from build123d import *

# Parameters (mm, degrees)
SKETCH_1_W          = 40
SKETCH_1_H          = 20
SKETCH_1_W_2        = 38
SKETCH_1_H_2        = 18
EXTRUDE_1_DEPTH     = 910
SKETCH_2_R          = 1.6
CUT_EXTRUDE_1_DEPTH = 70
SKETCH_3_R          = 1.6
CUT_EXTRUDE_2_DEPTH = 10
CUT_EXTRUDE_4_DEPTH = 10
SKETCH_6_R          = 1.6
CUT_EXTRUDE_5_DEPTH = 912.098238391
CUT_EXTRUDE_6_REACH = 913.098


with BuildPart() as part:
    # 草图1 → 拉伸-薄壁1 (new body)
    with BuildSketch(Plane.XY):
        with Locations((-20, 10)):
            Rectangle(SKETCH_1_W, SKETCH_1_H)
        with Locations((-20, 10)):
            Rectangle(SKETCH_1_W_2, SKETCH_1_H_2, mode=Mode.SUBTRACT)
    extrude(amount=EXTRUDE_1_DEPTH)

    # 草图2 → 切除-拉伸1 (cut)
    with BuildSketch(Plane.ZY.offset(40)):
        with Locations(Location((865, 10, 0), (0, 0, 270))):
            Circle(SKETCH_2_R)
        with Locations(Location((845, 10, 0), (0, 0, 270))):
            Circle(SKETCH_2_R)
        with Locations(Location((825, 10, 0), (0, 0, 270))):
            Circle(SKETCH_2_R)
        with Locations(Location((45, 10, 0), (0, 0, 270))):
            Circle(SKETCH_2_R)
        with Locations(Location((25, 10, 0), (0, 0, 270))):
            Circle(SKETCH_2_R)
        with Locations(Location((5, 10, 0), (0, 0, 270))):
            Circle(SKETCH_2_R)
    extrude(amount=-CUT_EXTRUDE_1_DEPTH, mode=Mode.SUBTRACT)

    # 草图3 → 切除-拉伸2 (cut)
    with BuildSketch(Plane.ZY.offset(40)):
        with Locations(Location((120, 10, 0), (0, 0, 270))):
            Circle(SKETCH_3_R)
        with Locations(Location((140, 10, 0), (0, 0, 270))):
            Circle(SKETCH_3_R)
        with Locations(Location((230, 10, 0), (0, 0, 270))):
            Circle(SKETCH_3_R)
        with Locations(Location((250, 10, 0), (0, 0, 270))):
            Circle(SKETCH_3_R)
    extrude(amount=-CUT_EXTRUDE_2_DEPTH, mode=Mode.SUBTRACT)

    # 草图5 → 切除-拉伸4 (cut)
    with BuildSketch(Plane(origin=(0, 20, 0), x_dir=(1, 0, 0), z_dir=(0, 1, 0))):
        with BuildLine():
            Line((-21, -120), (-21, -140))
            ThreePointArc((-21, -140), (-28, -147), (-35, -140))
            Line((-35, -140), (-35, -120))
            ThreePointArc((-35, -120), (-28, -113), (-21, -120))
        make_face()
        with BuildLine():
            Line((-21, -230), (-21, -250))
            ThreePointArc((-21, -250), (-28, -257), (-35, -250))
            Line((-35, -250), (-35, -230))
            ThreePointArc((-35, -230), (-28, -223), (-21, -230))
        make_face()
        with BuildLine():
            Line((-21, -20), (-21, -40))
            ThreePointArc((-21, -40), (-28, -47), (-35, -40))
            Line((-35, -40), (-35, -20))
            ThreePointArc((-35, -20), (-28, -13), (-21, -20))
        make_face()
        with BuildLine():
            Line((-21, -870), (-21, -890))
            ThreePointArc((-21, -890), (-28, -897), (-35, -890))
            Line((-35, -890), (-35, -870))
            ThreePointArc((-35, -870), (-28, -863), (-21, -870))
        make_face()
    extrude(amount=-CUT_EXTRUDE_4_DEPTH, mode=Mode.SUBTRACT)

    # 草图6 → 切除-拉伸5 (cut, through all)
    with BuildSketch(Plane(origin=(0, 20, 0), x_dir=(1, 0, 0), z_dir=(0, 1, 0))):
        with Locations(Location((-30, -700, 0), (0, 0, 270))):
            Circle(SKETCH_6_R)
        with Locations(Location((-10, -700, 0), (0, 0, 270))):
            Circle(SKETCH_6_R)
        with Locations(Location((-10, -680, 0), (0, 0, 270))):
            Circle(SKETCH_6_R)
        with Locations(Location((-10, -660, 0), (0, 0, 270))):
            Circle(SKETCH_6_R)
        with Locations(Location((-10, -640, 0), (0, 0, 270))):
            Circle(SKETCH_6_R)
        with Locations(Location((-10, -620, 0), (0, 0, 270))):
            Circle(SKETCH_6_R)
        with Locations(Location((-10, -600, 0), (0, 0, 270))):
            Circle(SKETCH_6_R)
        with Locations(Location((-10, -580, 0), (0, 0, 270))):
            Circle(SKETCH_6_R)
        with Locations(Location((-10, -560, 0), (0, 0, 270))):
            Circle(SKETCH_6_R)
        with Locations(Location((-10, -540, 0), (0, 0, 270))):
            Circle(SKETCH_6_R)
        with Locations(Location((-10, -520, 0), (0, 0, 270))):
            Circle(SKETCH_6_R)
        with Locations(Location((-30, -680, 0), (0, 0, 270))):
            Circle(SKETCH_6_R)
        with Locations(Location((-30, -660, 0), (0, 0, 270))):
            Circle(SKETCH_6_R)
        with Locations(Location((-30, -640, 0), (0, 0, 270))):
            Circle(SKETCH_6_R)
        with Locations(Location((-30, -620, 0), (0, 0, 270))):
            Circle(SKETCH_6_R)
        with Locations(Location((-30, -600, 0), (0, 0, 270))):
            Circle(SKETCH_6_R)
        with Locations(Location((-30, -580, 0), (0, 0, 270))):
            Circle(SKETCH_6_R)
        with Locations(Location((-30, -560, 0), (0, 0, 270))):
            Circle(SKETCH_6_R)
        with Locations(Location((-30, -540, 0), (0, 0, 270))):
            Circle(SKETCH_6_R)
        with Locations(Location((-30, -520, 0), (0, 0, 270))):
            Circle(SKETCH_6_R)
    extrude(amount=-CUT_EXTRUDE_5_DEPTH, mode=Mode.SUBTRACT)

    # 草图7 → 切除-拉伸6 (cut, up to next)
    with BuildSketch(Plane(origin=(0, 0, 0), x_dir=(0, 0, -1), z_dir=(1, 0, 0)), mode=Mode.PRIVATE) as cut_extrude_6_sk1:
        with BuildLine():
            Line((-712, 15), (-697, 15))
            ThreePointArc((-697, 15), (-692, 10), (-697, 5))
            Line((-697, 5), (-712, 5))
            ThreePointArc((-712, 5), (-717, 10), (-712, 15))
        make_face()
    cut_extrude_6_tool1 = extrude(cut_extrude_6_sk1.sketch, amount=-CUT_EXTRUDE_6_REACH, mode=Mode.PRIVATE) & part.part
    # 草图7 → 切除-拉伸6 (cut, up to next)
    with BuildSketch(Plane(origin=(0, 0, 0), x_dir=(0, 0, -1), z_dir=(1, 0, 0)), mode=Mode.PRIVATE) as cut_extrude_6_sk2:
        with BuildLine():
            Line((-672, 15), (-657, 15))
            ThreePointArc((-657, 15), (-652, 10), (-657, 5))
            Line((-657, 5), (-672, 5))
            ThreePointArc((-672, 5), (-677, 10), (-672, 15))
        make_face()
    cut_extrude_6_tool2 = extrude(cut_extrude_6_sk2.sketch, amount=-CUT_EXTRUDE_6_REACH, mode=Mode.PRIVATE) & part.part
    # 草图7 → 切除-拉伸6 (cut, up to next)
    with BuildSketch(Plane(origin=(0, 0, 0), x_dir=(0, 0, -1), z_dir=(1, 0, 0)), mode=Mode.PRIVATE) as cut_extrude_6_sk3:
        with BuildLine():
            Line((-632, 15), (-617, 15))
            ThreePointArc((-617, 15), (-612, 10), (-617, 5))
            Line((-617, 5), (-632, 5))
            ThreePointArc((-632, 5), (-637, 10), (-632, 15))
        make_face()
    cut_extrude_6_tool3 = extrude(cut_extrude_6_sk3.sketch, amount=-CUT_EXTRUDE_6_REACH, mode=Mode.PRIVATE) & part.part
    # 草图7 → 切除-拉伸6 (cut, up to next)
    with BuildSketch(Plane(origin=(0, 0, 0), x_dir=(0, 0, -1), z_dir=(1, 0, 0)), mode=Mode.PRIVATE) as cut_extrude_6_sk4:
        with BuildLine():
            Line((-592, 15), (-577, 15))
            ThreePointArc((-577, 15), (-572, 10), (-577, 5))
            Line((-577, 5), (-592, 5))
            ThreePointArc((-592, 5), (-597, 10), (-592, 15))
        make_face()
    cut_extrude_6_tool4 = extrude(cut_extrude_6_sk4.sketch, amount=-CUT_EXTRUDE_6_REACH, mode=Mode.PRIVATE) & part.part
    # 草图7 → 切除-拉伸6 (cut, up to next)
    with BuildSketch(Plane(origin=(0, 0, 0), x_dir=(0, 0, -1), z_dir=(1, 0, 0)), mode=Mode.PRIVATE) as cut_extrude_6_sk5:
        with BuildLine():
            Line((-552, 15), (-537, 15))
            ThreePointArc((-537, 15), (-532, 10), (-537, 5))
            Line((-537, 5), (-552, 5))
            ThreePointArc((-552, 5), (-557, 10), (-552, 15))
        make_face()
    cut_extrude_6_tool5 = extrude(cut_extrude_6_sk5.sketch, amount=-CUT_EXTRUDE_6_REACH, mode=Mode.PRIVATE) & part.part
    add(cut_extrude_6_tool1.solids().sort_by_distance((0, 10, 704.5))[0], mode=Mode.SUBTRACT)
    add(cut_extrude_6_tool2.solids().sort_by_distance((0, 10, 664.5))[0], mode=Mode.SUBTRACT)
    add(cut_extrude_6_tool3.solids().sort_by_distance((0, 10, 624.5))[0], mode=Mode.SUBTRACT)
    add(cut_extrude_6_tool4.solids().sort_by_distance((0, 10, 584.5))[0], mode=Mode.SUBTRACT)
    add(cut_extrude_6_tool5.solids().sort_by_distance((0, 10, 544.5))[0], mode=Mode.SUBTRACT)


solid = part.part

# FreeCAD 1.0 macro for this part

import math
import FreeCAD as App
import Part
import Sketcher

V = App.Vector

doc = App.newDocument("Part")
body = doc.addObject("PartDesign::Body", "Body")

# Sketch on XY plane
sketch1 = doc.addObject("Sketcher::SketchObject", "Sketch")
body.addObject(sketch1)
sketch1.AttachmentSupport = (doc.XY_Plane, [""])
sketch1.MapMode = "FlatFace"
sketch1.addGeometry([
    Part.LineSegment(V(-40, 20, 0), V(-40, 0, 0)),  # 0
    Part.LineSegment(V(-40, 0, 0), V(0, 0, 0)),  # 1
    Part.LineSegment(V(0, 0, 0), V(0, 20, 0)),  # 2
    Part.LineSegment(V(0, 20, 0), V(-40, 20, 0)),  # 3
    Part.LineSegment(V(-1, 1, 0), V(-39, 1, 0)),  # 4
    Part.LineSegment(V(-39, 1, 0), V(-39, 19, 0)),  # 5
    Part.LineSegment(V(-39, 19, 0), V(-1, 19, 0)),  # 6
    Part.LineSegment(V(-1, 19, 0), V(-1, 1, 0)),  # 7
], False)
sketch1.addConstraint([
    Sketcher.Constraint("Coincident", 0, 2, 1, 1),
    Sketcher.Constraint("Coincident", 1, 2, 2, 1),
    Sketcher.Constraint("Coincident", 2, 2, 3, 1),
    Sketcher.Constraint("Coincident", 3, 2, 0, 1),
    Sketcher.Constraint("Coincident", 4, 2, 5, 1),
    Sketcher.Constraint("Coincident", 5, 2, 6, 1),
    Sketcher.Constraint("Coincident", 6, 2, 7, 1),
    Sketcher.Constraint("Coincident", 7, 2, 4, 1),
    Sketcher.Constraint("Vertical", 0),
    Sketcher.Constraint("Horizontal", 1),
    Sketcher.Constraint("Vertical", 2),
    Sketcher.Constraint("Horizontal", 3),
    Sketcher.Constraint("Horizontal", 4),
    Sketcher.Constraint("Vertical", 5),
    Sketcher.Constraint("Horizontal", 6),
    Sketcher.Constraint("Vertical", 7),
    Sketcher.Constraint("Coincident", 1, 2, -1, 1),
    Sketcher.Constraint("DistanceX", 1, 1, 1, 2, 40.0),
    Sketcher.Constraint("DistanceX", 4, 2, 4, 1, 38.0),
    Sketcher.Constraint("DistanceY", 0, 2, 0, 1, 20.0),
    Sketcher.Constraint("DistanceY", 5, 1, 5, 2, 18.0),
    Sketcher.Constraint("DistanceX", 4, 2, -1, 1, 39.0),
    Sketcher.Constraint("DistanceY", -1, 1, 4, 2, 1.0),
])
pad1 = doc.addObject("PartDesign::Pad", "Pad")
body.addObject(pad1)
pad1.Profile = sketch1
pad1.Length = 910

# Sketch on YZ plane
sketch2 = doc.addObject("Sketcher::SketchObject", "Sketch001")
body.addObject(sketch2)
sketch2.AttachmentSupport = (doc.YZ_Plane, [""])
sketch2.MapMode = "FlatFace"
sketch2.AttachmentOffset = App.Placement(V(0, 0, -40), App.Rotation())
sketch2.addGeometry([
    Part.Circle(V(10, 865, 0), V(0, 0, 1), 1.6),  # 0
    Part.Circle(V(10, 845, 0), V(0, 0, 1), 1.6),  # 1
    Part.Circle(V(10, 825, 0), V(0, 0, 1), 1.6),  # 2
    Part.Circle(V(10, 45, 0), V(0, 0, 1), 1.6),  # 3
    Part.Circle(V(10, 25, 0), V(0, 0, 1), 1.6),  # 4
    Part.Circle(V(10, 5, 0), V(0, 0, 1), 1.6),  # 5
], False)
sketch2.addConstraint([
    Sketcher.Constraint("Equal", 0, 1),
    Sketcher.Constraint("Equal", 1, 2),
    Sketcher.Constraint("Equal", 2, 3),
    Sketcher.Constraint("Equal", 3, 4),
    Sketcher.Constraint("Equal", 4, 5),
    Sketcher.Constraint("Vertical", 0, 3, 1, 3),
    Sketcher.Constraint("Vertical", 1, 3, 2, 3),
    Sketcher.Constraint("Vertical", 2, 3, 3, 3),
    Sketcher.Constraint("Vertical", 3, 3, 4, 3),
    Sketcher.Constraint("Vertical", 4, 3, 5, 3),
    Sketcher.Constraint("Diameter", 0, 3.2),
    Sketcher.Constraint("DistanceX", -1, 1, 0, 3, 10.0),
    Sketcher.Constraint("DistanceY", -1, 1, 0, 3, 865.0),
    Sketcher.Constraint("DistanceY", -1, 1, 1, 3, 845.0),
    Sketcher.Constraint("DistanceY", -1, 1, 2, 3, 825.0),
    Sketcher.Constraint("DistanceY", -1, 1, 3, 3, 45.0),
    Sketcher.Constraint("DistanceY", -1, 1, 4, 3, 25.0),
    Sketcher.Constraint("DistanceY", -1, 1, 5, 3, 5.0),
])
pocket1 = doc.addObject("PartDesign::Pocket", "Pocket")
body.addObject(pocket1)
pocket1.Profile = sketch2
pocket1.Length = 70
pocket1.Reversed = True

# Sketch on YZ plane
sketch3 = doc.addObject("Sketcher::SketchObject", "Sketch002")
body.addObject(sketch3)
sketch3.AttachmentSupport = (doc.YZ_Plane, [""])
sketch3.MapMode = "FlatFace"
sketch3.AttachmentOffset = App.Placement(V(0, 0, -40), App.Rotation())
sketch3.addGeometry([
    Part.Circle(V(10, 120, 0), V(0, 0, 1), 1.6),
    Part.Circle(V(10, 140, 0), V(0, 0, 1), 1.6),
    Part.Circle(V(10, 230, 0), V(0, 0, 1), 1.6),
    Part.Circle(V(10, 250, 0), V(0, 0, 1), 1.6),
], False)
sketch3.addConstraint([
    Sketcher.Constraint("Equal", 0, 1),
    Sketcher.Constraint("Equal", 1, 2),
    Sketcher.Constraint("Equal", 2, 3),
    Sketcher.Constraint("Vertical", 0, 3, 1, 3),
    Sketcher.Constraint("Vertical", 1, 3, 2, 3),
    Sketcher.Constraint("Vertical", 2, 3, 3, 3),
    Sketcher.Constraint("Diameter", 0, 3.2),
    Sketcher.Constraint("DistanceX", -1, 1, 0, 3, 10.0),
    Sketcher.Constraint("DistanceY", -1, 1, 0, 3, 120.0),
    Sketcher.Constraint("DistanceY", -1, 1, 1, 3, 140.0),
    Sketcher.Constraint("DistanceY", -1, 1, 2, 3, 230.0),
    Sketcher.Constraint("DistanceY", -1, 1, 3, 3, 250.0),
])
pocket2 = doc.addObject("PartDesign::Pocket", "Pocket001")
body.addObject(pocket2)
pocket2.Profile = sketch3
pocket2.Length = 10
pocket2.Reversed = True

# Sketch on XZ plane
sketch4 = doc.addObject("Sketcher::SketchObject", "Sketch003")
body.addObject(sketch4)
sketch4.AttachmentSupport = (doc.XZ_Plane, [""])
sketch4.MapMode = "FlatFace"
sketch4.AttachmentOffset = App.Placement(V(0, 0, -20), App.Rotation())
sketch4.addGeometry([
    Part.LineSegment(V(-21, 140, 0), V(-21, 120, 0)),  # 0
    Part.ArcOfCircle(Part.Circle(V(-28, 120, 0), V(0, 0, 1), 7), math.radians(180), math.radians(360)),  # 1
    Part.LineSegment(V(-35, 120, 0), V(-35, 140, 0)),  # 2
    Part.ArcOfCircle(Part.Circle(V(-28, 140, 0), V(0, 0, 1), 7), math.radians(0), math.radians(180)),  # 3
    Part.LineSegment(V(-21, 250, 0), V(-21, 230, 0)),  # 4
    Part.ArcOfCircle(Part.Circle(V(-28, 230, 0), V(0, 0, 1), 7), math.radians(180), math.radians(360)),  # 5
    Part.LineSegment(V(-35, 230, 0), V(-35, 250, 0)),  # 6
    Part.ArcOfCircle(Part.Circle(V(-28, 250, 0), V(0, 0, 1), 7), math.radians(0), math.radians(180)),  # 7
    Part.LineSegment(V(-21, 40, 0), V(-21, 20, 0)),  # 8
    Part.ArcOfCircle(Part.Circle(V(-28, 20, 0), V(0, 0, 1), 7), math.radians(180), math.radians(360)),  # 9
    Part.LineSegment(V(-35, 20, 0), V(-35, 40, 0)),  # 10
    Part.ArcOfCircle(Part.Circle(V(-28, 40, 0), V(0, 0, 1), 7), math.radians(0), math.radians(180)),  # 11
    Part.LineSegment(V(-21, 890, 0), V(-21, 870, 0)),  # 12
    Part.ArcOfCircle(Part.Circle(V(-28, 870, 0), V(0, 0, 1), 7), math.radians(180), math.radians(360)),  # 13
    Part.LineSegment(V(-35, 870, 0), V(-35, 890, 0)),  # 14
    Part.ArcOfCircle(Part.Circle(V(-28, 890, 0), V(0, 0, 1), 7), math.radians(0), math.radians(180)),  # 15
], False)
sketch4.addConstraint([
    Sketcher.Constraint("Tangent", 0, 2, 1, 2),
    Sketcher.Constraint("Tangent", 1, 1, 2, 1),
    Sketcher.Constraint("Tangent", 2, 2, 3, 2),
    Sketcher.Constraint("Tangent", 3, 1, 0, 1),
    Sketcher.Constraint("Tangent", 4, 2, 5, 2),
    Sketcher.Constraint("Tangent", 5, 1, 6, 1),
    Sketcher.Constraint("Tangent", 6, 2, 7, 2),
    Sketcher.Constraint("Tangent", 7, 1, 4, 1),
    Sketcher.Constraint("Tangent", 8, 2, 9, 2),
    Sketcher.Constraint("Tangent", 9, 1, 10, 1),
    Sketcher.Constraint("Tangent", 10, 2, 11, 2),
    Sketcher.Constraint("Tangent", 11, 1, 8, 1),
    Sketcher.Constraint("Tangent", 12, 2, 13, 2),
    Sketcher.Constraint("Tangent", 13, 1, 14, 1),
    Sketcher.Constraint("Tangent", 14, 2, 15, 2),
    Sketcher.Constraint("Tangent", 15, 1, 12, 1),
    Sketcher.Constraint("Vertical", 0),
    Sketcher.Constraint("Vertical", 2),
    Sketcher.Constraint("Vertical", 4),
    Sketcher.Constraint("Vertical", 6),
    Sketcher.Constraint("Vertical", 8),
    Sketcher.Constraint("Vertical", 10),
    Sketcher.Constraint("Vertical", 12),
    Sketcher.Constraint("Vertical", 14),
    Sketcher.Constraint("Equal", 3, 5),
    Sketcher.Constraint("Equal", 7, 9),
    Sketcher.Constraint("Equal", 11, 13),
    Sketcher.Constraint("Vertical", 3, 3, 5, 3),
    Sketcher.Constraint("Vertical", 7, 3, 9, 3),
    Sketcher.Constraint("Vertical", 11, 3, 13, 3),
    Sketcher.Constraint("Equal", 2, 4),
    Sketcher.Constraint("Equal", 6, 8),
    Sketcher.Constraint("Equal", 10, 12),
    Sketcher.Constraint("Radius", 1, 7.0),
    Sketcher.Constraint("DistanceY", 0, 2, 0, 1, 20.0),
    Sketcher.Constraint("DistanceX", 1, 3, -1, 1, 28.0),
    Sketcher.Constraint("DistanceY", -1, 1, 1, 3, 120.0),
    Sketcher.Constraint("DistanceY", -1, 1, 5, 3, 230.0),
    Sketcher.Constraint("DistanceY", -1, 1, 9, 3, 20.0),
    Sketcher.Constraint("DistanceY", -1, 1, 13, 3, 870.0),
])
pocket3 = doc.addObject("PartDesign::Pocket", "Pocket002")
body.addObject(pocket3)
pocket3.Profile = sketch4
pocket3.Length = 10
pocket3.Reversed = True

# Sketch on XZ plane
sketch5 = doc.addObject("Sketcher::SketchObject", "Sketch004")
body.addObject(sketch5)
sketch5.AttachmentSupport = (doc.XZ_Plane, [""])
sketch5.MapMode = "FlatFace"
sketch5.AttachmentOffset = App.Placement(V(0, 0, -20), App.Rotation())
sketch5.addGeometry([
    Part.Circle(V(-30, 700, 0), V(0, 0, 1), 1.6),  # 0
    Part.Circle(V(-10, 700, 0), V(0, 0, 1), 1.6),  # 1
    Part.Circle(V(-10, 680, 0), V(0, 0, 1), 1.6),  # 2
    Part.Circle(V(-10, 660, 0), V(0, 0, 1), 1.6),  # 3
    Part.Circle(V(-10, 640, 0), V(0, 0, 1), 1.6),  # 4
    Part.Circle(V(-10, 620, 0), V(0, 0, 1), 1.6),  # 5
    Part.Circle(V(-10, 600, 0), V(0, 0, 1), 1.6),  # 6
    Part.Circle(V(-10, 580, 0), V(0, 0, 1), 1.6),  # 7
    Part.Circle(V(-10, 560, 0), V(0, 0, 1), 1.6),  # 8
    Part.Circle(V(-10, 540, 0), V(0, 0, 1), 1.6),  # 9
    Part.Circle(V(-10, 520, 0), V(0, 0, 1), 1.6),  # 10
    Part.Circle(V(-30, 680, 0), V(0, 0, 1), 1.6),  # 11
    Part.Circle(V(-30, 660, 0), V(0, 0, 1), 1.6),  # 12
    Part.Circle(V(-30, 640, 0), V(0, 0, 1), 1.6),  # 13
    Part.Circle(V(-30, 620, 0), V(0, 0, 1), 1.6),  # 14
    Part.Circle(V(-30, 600, 0), V(0, 0, 1), 1.6),  # 15
    Part.Circle(V(-30, 580, 0), V(0, 0, 1), 1.6),  # 16
    Part.Circle(V(-30, 560, 0), V(0, 0, 1), 1.6),  # 17
    Part.Circle(V(-30, 540, 0), V(0, 0, 1), 1.6),  # 18
    Part.Circle(V(-30, 520, 0), V(0, 0, 1), 1.6),  # 19
], False)
sketch5.addConstraint([
    Sketcher.Constraint("Equal", 0, 1),
    Sketcher.Constraint("Equal", 1, 2),
    Sketcher.Constraint("Equal", 2, 3),
    Sketcher.Constraint("Equal", 3, 4),
    Sketcher.Constraint("Equal", 4, 5),
    Sketcher.Constraint("Equal", 5, 6),
    Sketcher.Constraint("Equal", 6, 7),
    Sketcher.Constraint("Equal", 7, 8),
    Sketcher.Constraint("Equal", 8, 9),
    Sketcher.Constraint("Equal", 9, 10),
    Sketcher.Constraint("Equal", 10, 11),
    Sketcher.Constraint("Equal", 11, 12),
    Sketcher.Constraint("Equal", 12, 13),
    Sketcher.Constraint("Equal", 13, 14),
    Sketcher.Constraint("Equal", 14, 15),
    Sketcher.Constraint("Equal", 15, 16),
    Sketcher.Constraint("Equal", 16, 17),
    Sketcher.Constraint("Equal", 17, 18),
    Sketcher.Constraint("Equal", 18, 19),
    Sketcher.Constraint("Horizontal", 0, 3, 1, 3),
    Sketcher.Constraint("Horizontal", 2, 3, 11, 3),
    Sketcher.Constraint("Horizontal", 3, 3, 12, 3),
    Sketcher.Constraint("Horizontal", 4, 3, 13, 3),
    Sketcher.Constraint("Horizontal", 5, 3, 14, 3),
    Sketcher.Constraint("Horizontal", 6, 3, 15, 3),
    Sketcher.Constraint("Horizontal", 7, 3, 16, 3),
    Sketcher.Constraint("Horizontal", 8, 3, 17, 3),
    Sketcher.Constraint("Horizontal", 9, 3, 18, 3),
    Sketcher.Constraint("Horizontal", 10, 3, 19, 3),
    Sketcher.Constraint("Vertical", 1, 3, 2, 3),
    Sketcher.Constraint("Vertical", 2, 3, 3, 3),
    Sketcher.Constraint("Vertical", 3, 3, 4, 3),
    Sketcher.Constraint("Vertical", 4, 3, 5, 3),
    Sketcher.Constraint("Vertical", 5, 3, 6, 3),
    Sketcher.Constraint("Vertical", 6, 3, 7, 3),
    Sketcher.Constraint("Vertical", 7, 3, 8, 3),
    Sketcher.Constraint("Vertical", 8, 3, 9, 3),
    Sketcher.Constraint("Vertical", 9, 3, 10, 3),
    Sketcher.Constraint("Vertical", 0, 3, 11, 3),
    Sketcher.Constraint("Vertical", 11, 3, 12, 3),
    Sketcher.Constraint("Vertical", 12, 3, 13, 3),
    Sketcher.Constraint("Vertical", 13, 3, 14, 3),
    Sketcher.Constraint("Vertical", 14, 3, 15, 3),
    Sketcher.Constraint("Vertical", 15, 3, 16, 3),
    Sketcher.Constraint("Vertical", 16, 3, 17, 3),
    Sketcher.Constraint("Vertical", 17, 3, 18, 3),
    Sketcher.Constraint("Vertical", 18, 3, 19, 3),
    Sketcher.Constraint("Diameter", 0, 3.2),
    Sketcher.Constraint("DistanceX", 0, 3, -1, 1, 30.0),
    Sketcher.Constraint("DistanceY", -1, 1, 0, 3, 700.0),
    Sketcher.Constraint("DistanceX", 1, 3, -1, 1, 10.0),
    Sketcher.Constraint("DistanceY", -1, 1, 2, 3, 680.0),
    Sketcher.Constraint("DistanceY", -1, 1, 3, 3, 660.0),
    Sketcher.Constraint("DistanceY", -1, 1, 4, 3, 640.0),
    Sketcher.Constraint("DistanceY", -1, 1, 5, 3, 620.0),
    Sketcher.Constraint("DistanceY", -1, 1, 6, 3, 600.0),
    Sketcher.Constraint("DistanceY", -1, 1, 7, 3, 580.0),
    Sketcher.Constraint("DistanceY", -1, 1, 8, 3, 560.0),
    Sketcher.Constraint("DistanceY", -1, 1, 9, 3, 540.0),
    Sketcher.Constraint("DistanceY", -1, 1, 10, 3, 520.0),
])
pocket4 = doc.addObject("PartDesign::Pocket", "Pocket003")
body.addObject(pocket4)
pocket4.Profile = sketch5
pocket4.Type = "ThroughAll"
pocket4.Reversed = True

# Sketch on YZ plane
sketch6 = doc.addObject("Sketcher::SketchObject", "Sketch005")
body.addObject(sketch6)
sketch6.AttachmentSupport = (doc.YZ_Plane, [""])
sketch6.MapMode = "FlatFace"
sketch6.addGeometry([
    Part.LineSegment(V(15, 697, 0), V(15, 712, 0)),
    Part.ArcOfCircle(Part.Circle(V(10, 712, 0), V(0, 0, 1), 5), math.radians(0), math.radians(180)),
    Part.LineSegment(V(5, 712, 0), V(5, 697, 0)),
    Part.ArcOfCircle(Part.Circle(V(10, 697, 0), V(0, 0, 1), 5), math.radians(180), math.radians(360)),
], False)
sketch6.addConstraint([
    Sketcher.Constraint("Tangent", 0, 2, 1, 1),
    Sketcher.Constraint("Tangent", 1, 2, 2, 1),
    Sketcher.Constraint("Tangent", 2, 2, 3, 1),
    Sketcher.Constraint("Tangent", 3, 2, 0, 1),
    Sketcher.Constraint("Vertical", 0),
    Sketcher.Constraint("Vertical", 2),
    Sketcher.Constraint("Radius", 1, 5.0),
    Sketcher.Constraint("DistanceY", 0, 1, 0, 2, 15.0),
    Sketcher.Constraint("DistanceX", -1, 1, 1, 3, 10.0),
    Sketcher.Constraint("DistanceY", -1, 1, 1, 3, 712.0),
])
pocket5 = doc.addObject("PartDesign::Pocket", "Pocket004")
body.addObject(pocket5)
pocket5.Profile = sketch6
pocket5.Type = "UpToFirst"

# Sketch on YZ plane
sketch7 = doc.addObject("Sketcher::SketchObject", "Sketch006")
body.addObject(sketch7)
sketch7.AttachmentSupport = (doc.YZ_Plane, [""])
sketch7.MapMode = "FlatFace"
sketch7.addGeometry([
    Part.LineSegment(V(15, 657, 0), V(15, 672, 0)),
    Part.ArcOfCircle(Part.Circle(V(10, 672, 0), V(0, 0, 1), 5), math.radians(0), math.radians(180)),
    Part.LineSegment(V(5, 672, 0), V(5, 657, 0)),
    Part.ArcOfCircle(Part.Circle(V(10, 657, 0), V(0, 0, 1), 5), math.radians(180), math.radians(360)),
], False)
sketch7.addConstraint([
    Sketcher.Constraint("Tangent", 0, 2, 1, 1),
    Sketcher.Constraint("Tangent", 1, 2, 2, 1),
    Sketcher.Constraint("Tangent", 2, 2, 3, 1),
    Sketcher.Constraint("Tangent", 3, 2, 0, 1),
    Sketcher.Constraint("Vertical", 0),
    Sketcher.Constraint("Vertical", 2),
    Sketcher.Constraint("Radius", 1, 5.0),
    Sketcher.Constraint("DistanceY", 0, 1, 0, 2, 15.0),
    Sketcher.Constraint("DistanceX", -1, 1, 1, 3, 10.0),
    Sketcher.Constraint("DistanceY", -1, 1, 1, 3, 672.0),
])
pocket6 = doc.addObject("PartDesign::Pocket", "Pocket005")
body.addObject(pocket6)
pocket6.Profile = sketch7
pocket6.Type = "UpToFirst"

# Sketch on YZ plane
sketch8 = doc.addObject("Sketcher::SketchObject", "Sketch007")
body.addObject(sketch8)
sketch8.AttachmentSupport = (doc.YZ_Plane, [""])
sketch8.MapMode = "FlatFace"
sketch8.addGeometry([
    Part.LineSegment(V(15, 617, 0), V(15, 632, 0)),
    Part.ArcOfCircle(Part.Circle(V(10, 632, 0), V(0, 0, 1), 5), math.radians(0), math.radians(180)),
    Part.LineSegment(V(5, 632, 0), V(5, 617, 0)),
    Part.ArcOfCircle(Part.Circle(V(10, 617, 0), V(0, 0, 1), 5), math.radians(180), math.radians(360)),
], False)
sketch8.addConstraint([
    Sketcher.Constraint("Tangent", 0, 2, 1, 1),
    Sketcher.Constraint("Tangent", 1, 2, 2, 1),
    Sketcher.Constraint("Tangent", 2, 2, 3, 1),
    Sketcher.Constraint("Tangent", 3, 2, 0, 1),
    Sketcher.Constraint("Vertical", 0),
    Sketcher.Constraint("Vertical", 2),
    Sketcher.Constraint("Radius", 1, 5.0),
    Sketcher.Constraint("DistanceY", 0, 1, 0, 2, 15.0),
    Sketcher.Constraint("DistanceX", -1, 1, 1, 3, 10.0),
    Sketcher.Constraint("DistanceY", -1, 1, 1, 3, 632.0),
])
pocket7 = doc.addObject("PartDesign::Pocket", "Pocket006")
body.addObject(pocket7)
pocket7.Profile = sketch8
pocket7.Type = "UpToFirst"

# Sketch on YZ plane
sketch9 = doc.addObject("Sketcher::SketchObject", "Sketch008")
body.addObject(sketch9)
sketch9.AttachmentSupport = (doc.YZ_Plane, [""])
sketch9.MapMode = "FlatFace"
sketch9.addGeometry([
    Part.LineSegment(V(15, 577, 0), V(15, 592, 0)),
    Part.ArcOfCircle(Part.Circle(V(10, 592, 0), V(0, 0, 1), 5), math.radians(0), math.radians(180)),
    Part.LineSegment(V(5, 592, 0), V(5, 577, 0)),
    Part.ArcOfCircle(Part.Circle(V(10, 577, 0), V(0, 0, 1), 5), math.radians(180), math.radians(360)),
], False)
sketch9.addConstraint([
    Sketcher.Constraint("Tangent", 0, 2, 1, 1),
    Sketcher.Constraint("Tangent", 1, 2, 2, 1),
    Sketcher.Constraint("Tangent", 2, 2, 3, 1),
    Sketcher.Constraint("Tangent", 3, 2, 0, 1),
    Sketcher.Constraint("Vertical", 0),
    Sketcher.Constraint("Vertical", 2),
    Sketcher.Constraint("Radius", 1, 5.0),
    Sketcher.Constraint("DistanceY", 0, 1, 0, 2, 15.0),
    Sketcher.Constraint("DistanceX", -1, 1, 1, 3, 10.0),
    Sketcher.Constraint("DistanceY", -1, 1, 1, 3, 592.0),
])
pocket8 = doc.addObject("PartDesign::Pocket", "Pocket007")
body.addObject(pocket8)
pocket8.Profile = sketch9
pocket8.Type = "UpToFirst"

# Sketch on YZ plane
sketch10 = doc.addObject("Sketcher::SketchObject", "Sketch009")
body.addObject(sketch10)
sketch10.AttachmentSupport = (doc.YZ_Plane, [""])
sketch10.MapMode = "FlatFace"
sketch10.addGeometry([
    Part.LineSegment(V(15, 537, 0), V(15, 552, 0)),
    Part.ArcOfCircle(Part.Circle(V(10, 552, 0), V(0, 0, 1), 5), math.radians(0), math.radians(180)),
    Part.LineSegment(V(5, 552, 0), V(5, 537, 0)),
    Part.ArcOfCircle(Part.Circle(V(10, 537, 0), V(0, 0, 1), 5), math.radians(180), math.radians(360)),
], False)
sketch10.addConstraint([
    Sketcher.Constraint("Tangent", 0, 2, 1, 1),
    Sketcher.Constraint("Tangent", 1, 2, 2, 1),
    Sketcher.Constraint("Tangent", 2, 2, 3, 1),
    Sketcher.Constraint("Tangent", 3, 2, 0, 1),
    Sketcher.Constraint("Vertical", 0),
    Sketcher.Constraint("Vertical", 2),
    Sketcher.Constraint("Radius", 1, 5.0),
    Sketcher.Constraint("DistanceY", 0, 1, 0, 2, 15.0),
    Sketcher.Constraint("DistanceX", -1, 1, 1, 3, 10.0),
    Sketcher.Constraint("DistanceY", -1, 1, 1, 3, 552.0),
])
pocket9 = doc.addObject("PartDesign::Pocket", "Pocket008")
body.addObject(pocket9)
pocket9.Profile = sketch10
pocket9.Type = "UpToFirst"

doc.recompute()
